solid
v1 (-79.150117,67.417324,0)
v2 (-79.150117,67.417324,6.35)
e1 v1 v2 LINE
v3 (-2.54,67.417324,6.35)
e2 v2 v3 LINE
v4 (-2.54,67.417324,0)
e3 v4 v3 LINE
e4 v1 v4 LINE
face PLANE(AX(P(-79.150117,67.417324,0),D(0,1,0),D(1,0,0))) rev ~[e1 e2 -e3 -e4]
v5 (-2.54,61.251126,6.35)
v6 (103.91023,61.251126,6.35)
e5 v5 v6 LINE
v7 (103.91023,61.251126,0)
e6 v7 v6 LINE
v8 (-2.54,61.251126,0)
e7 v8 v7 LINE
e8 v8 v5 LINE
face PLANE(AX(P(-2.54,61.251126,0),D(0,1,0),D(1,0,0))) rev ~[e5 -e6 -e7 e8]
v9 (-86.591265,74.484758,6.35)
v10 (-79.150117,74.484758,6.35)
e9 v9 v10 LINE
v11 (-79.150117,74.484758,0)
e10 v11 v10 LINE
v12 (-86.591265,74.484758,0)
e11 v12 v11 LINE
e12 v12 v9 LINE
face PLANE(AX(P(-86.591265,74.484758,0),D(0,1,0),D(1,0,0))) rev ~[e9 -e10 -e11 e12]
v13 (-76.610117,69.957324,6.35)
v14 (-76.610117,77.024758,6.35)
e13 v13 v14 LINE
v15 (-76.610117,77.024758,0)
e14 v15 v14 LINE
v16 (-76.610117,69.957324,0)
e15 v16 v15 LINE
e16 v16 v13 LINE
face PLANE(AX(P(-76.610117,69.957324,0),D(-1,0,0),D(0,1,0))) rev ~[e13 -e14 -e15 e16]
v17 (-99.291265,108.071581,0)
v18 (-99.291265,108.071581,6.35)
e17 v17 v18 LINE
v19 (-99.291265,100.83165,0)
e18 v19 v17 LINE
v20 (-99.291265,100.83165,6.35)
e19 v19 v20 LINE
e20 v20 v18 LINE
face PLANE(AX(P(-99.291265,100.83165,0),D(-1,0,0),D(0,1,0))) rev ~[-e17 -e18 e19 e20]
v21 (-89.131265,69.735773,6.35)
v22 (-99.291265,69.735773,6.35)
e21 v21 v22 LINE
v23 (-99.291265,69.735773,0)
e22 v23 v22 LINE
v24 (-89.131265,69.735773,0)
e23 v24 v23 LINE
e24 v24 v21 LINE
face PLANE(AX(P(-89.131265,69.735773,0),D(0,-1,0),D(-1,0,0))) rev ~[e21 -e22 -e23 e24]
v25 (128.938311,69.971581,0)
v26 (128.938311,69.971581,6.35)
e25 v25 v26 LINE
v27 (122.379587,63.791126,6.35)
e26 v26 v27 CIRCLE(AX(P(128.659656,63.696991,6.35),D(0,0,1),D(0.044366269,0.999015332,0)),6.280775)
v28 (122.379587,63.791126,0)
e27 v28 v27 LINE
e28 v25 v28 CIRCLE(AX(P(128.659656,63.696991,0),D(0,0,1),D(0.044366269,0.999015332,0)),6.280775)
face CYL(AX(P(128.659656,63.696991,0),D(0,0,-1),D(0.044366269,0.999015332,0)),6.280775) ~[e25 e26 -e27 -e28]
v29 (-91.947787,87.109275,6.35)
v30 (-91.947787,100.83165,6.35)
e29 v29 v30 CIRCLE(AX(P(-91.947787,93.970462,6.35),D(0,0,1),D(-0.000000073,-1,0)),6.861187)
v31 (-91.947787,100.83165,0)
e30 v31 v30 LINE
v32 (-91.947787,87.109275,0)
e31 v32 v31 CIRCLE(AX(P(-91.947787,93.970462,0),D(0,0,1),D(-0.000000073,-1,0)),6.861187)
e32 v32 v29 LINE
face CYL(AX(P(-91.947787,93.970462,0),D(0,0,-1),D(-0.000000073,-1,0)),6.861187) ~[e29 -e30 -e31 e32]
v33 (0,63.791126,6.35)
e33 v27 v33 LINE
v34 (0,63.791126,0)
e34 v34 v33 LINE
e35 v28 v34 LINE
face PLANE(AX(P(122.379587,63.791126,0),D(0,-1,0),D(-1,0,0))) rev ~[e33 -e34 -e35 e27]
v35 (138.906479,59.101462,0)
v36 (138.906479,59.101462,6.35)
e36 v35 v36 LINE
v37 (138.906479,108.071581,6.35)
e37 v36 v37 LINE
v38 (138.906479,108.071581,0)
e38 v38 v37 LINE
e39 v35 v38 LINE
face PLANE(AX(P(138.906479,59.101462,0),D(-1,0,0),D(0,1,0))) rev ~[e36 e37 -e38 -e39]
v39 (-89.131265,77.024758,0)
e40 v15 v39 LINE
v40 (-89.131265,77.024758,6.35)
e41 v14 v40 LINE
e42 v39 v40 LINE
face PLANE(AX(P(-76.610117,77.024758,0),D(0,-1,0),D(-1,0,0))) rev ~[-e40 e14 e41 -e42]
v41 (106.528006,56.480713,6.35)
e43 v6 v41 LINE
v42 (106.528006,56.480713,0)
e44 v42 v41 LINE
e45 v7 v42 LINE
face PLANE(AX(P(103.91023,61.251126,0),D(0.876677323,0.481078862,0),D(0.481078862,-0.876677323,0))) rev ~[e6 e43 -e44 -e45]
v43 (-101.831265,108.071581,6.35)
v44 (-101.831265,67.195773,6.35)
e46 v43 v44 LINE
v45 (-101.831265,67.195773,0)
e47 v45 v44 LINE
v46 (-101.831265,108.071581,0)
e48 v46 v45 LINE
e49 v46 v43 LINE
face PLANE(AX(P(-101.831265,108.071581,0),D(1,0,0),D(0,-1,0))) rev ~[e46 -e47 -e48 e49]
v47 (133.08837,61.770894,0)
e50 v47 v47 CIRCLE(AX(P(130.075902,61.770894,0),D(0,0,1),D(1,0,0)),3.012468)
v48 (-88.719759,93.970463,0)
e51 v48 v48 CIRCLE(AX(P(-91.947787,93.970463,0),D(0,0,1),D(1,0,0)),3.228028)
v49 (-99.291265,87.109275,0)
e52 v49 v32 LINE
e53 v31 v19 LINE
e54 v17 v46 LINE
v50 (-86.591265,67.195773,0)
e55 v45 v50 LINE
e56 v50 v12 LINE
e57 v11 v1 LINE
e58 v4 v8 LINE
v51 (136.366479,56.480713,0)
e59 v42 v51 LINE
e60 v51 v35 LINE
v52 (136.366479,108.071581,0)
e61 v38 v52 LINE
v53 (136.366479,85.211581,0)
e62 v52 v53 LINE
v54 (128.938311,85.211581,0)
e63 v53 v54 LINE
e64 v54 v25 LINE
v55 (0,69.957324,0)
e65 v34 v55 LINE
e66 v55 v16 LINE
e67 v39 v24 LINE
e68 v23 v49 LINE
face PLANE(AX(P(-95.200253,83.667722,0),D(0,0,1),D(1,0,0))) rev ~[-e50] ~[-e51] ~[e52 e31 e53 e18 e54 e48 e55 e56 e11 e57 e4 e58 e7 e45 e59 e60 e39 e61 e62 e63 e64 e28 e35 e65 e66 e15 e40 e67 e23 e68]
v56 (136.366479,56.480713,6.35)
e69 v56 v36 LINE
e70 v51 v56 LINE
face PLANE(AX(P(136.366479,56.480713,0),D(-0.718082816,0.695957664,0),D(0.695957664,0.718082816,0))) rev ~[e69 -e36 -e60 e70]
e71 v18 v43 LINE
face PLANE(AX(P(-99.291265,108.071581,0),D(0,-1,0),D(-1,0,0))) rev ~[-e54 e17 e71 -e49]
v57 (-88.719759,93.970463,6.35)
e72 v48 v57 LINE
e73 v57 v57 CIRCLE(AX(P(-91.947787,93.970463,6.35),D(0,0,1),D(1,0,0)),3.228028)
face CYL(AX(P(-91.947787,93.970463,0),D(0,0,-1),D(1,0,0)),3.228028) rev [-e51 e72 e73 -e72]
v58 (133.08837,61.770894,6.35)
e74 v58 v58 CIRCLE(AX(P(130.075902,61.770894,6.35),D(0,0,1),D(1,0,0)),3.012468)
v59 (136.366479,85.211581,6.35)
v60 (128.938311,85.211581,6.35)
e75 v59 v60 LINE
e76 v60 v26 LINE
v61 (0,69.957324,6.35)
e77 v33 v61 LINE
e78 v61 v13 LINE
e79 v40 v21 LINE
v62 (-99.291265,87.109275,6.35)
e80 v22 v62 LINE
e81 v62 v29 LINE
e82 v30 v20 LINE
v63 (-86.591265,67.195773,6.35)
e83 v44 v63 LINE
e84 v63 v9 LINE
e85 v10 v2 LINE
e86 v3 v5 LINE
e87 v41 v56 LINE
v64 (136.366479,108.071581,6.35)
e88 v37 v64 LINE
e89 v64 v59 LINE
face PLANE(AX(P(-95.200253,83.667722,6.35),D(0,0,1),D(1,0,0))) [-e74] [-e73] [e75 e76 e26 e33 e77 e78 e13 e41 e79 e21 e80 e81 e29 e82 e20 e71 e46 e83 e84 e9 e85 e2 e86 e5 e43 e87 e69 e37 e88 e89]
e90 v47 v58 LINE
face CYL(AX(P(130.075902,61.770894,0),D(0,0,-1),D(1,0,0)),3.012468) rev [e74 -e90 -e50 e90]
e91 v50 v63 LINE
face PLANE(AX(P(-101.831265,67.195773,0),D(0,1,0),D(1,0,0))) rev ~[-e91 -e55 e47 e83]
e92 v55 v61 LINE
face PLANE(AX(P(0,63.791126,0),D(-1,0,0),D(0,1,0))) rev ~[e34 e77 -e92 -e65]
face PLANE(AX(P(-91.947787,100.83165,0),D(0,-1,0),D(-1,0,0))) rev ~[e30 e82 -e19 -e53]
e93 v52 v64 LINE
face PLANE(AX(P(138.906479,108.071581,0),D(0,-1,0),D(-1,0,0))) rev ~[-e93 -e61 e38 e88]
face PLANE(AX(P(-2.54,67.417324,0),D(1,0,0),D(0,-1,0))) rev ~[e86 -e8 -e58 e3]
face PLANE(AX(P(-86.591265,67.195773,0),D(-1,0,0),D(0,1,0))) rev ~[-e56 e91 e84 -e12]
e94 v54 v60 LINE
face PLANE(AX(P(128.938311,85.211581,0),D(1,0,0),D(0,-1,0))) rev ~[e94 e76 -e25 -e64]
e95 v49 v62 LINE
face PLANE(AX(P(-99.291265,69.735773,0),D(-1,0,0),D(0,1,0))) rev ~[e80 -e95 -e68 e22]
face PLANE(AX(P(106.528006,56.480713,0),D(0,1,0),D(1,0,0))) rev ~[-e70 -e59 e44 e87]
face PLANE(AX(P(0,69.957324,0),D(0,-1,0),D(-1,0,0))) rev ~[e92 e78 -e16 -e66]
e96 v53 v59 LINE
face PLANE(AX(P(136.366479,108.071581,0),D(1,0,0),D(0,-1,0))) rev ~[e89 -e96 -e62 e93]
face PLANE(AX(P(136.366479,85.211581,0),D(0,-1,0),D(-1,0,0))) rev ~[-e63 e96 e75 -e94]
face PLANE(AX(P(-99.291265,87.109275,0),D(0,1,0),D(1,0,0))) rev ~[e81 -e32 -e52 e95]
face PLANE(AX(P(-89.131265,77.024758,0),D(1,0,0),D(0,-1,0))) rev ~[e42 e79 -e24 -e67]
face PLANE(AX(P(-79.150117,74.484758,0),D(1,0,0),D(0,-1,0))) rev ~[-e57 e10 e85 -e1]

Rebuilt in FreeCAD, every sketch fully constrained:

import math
import FreeCAD as App
import Part
import Sketcher

V = App.Vector
Q = App.Units.Quantity

doc = App.newDocument("Part")
body = doc.addObject("PartDesign::Body", "Body")

sketch1 = doc.addObject("Sketcher::SketchObject", "Sketch")
body.addObject(sketch1)
sketch1.AttachmentSupport = (doc.XY_Plane, [""])
sketch1.MapMode = "FlatFace"
sketch1.addGeometry([
    Part.ArcOfCircle(Part.Circle(V(-91.9, 94, 0), V(0, 0, 1), 6.9), math.radians(-90), math.radians(90)),
    Part.LineSegment(V(-91.9, 100.8, 0), V(-99.3, 100.8, 0)),
    Part.LineSegment(V(-99.3, 100.8, 0), V(-99.3, 108.1, 0)),
    Part.LineSegment(V(-99.3, 108.1, 0), V(-101.8, 108.1, 0)),
    Part.LineSegment(V(-101.8, 108.1, 0), V(-101.8, 67.2, 0)),
    Part.LineSegment(V(-101.8, 67.2, 0), V(-86.6, 67.2, 0)),
    Part.LineSegment(V(-86.6, 67.2, 0), V(-86.6, 74.5, 0)),
    Part.LineSegment(V(-86.6, 74.5, 0), V(-79.2, 74.5, 0)),
    Part.LineSegment(V(-79.2, 74.5, 0), V(-79.2, 67.4, 0)),
    Part.LineSegment(V(-79.2, 67.4, 0), V(-2.5, 67.4, 0)),
    Part.LineSegment(V(-2.5, 67.4, 0), V(-2.5, 61.3, 0)),
    Part.LineSegment(V(-2.5, 61.3, 0), V(103.9, 61.3, 0)),
    Part.LineSegment(V(103.9, 61.3, 0), V(106.5, 56.5, 0)),
    Part.LineSegment(V(106.5, 56.5, 0), V(136.4, 56.5, 0)),
    Part.LineSegment(V(136.4, 56.5, 0), V(138.9, 59.1, 0)),
    Part.LineSegment(V(138.9, 59.1, 0), V(138.9, 108.1, 0)),
    Part.LineSegment(V(138.9, 108.1, 0), V(136.4, 108.1, 0)),
    Part.LineSegment(V(136.4, 108.1, 0), V(136.4, 85.2, 0)),
    Part.LineSegment(V(136.4, 85.2, 0), V(128.9, 85.2, 0)),
    Part.LineSegment(V(128.9, 85.2, 0), V(128.9, 70, 0)),
    Part.ArcOfCircle(Part.Circle(V(128.7, 63.7, 0), V(0, 0, 1), 6.3), math.radians(87), math.radians(179)),
    Part.LineSegment(V(122.4, 63.8, 0), V(0, 63.8, 0)),
    Part.LineSegment(V(0, 63.8, 0), V(0, 70, 0)),
    Part.LineSegment(V(0, 70, 0), V(-76.6, 70, 0)),
    Part.LineSegment(V(-76.6, 70, 0), V(-76.6, 77, 0)),
    Part.LineSegment(V(-76.6, 77, 0), V(-89.1, 77, 0)),
    Part.LineSegment(V(-89.1, 77, 0), V(-89.1, 69.7, 0)),
    Part.LineSegment(V(-89.1, 69.7, 0), V(-99.3, 69.7, 0)),
    Part.LineSegment(V(-99.3, 69.7, 0), V(-99.3, 87.1, 0)),
    Part.LineSegment(V(-99.3, 87.1, 0), V(-91.9, 87.1, 0)),
    Part.Circle(V(130.1, 61.8, 0), V(0, 0, 1), 3),
    Part.Circle(V(-91.9, 94, 0), V(0, 0, 1), 3.2),
], False)
sketch1.addConstraint([
    Sketcher.Constraint("Tangent", 0, 2, 1, 1),
    Sketcher.Constraint("Coincident", 1, 2, 2, 1),
    Sketcher.Constraint("Coincident", 2, 2, 3, 1),
    Sketcher.Constraint("Coincident", 3, 2, 4, 1),
    Sketcher.Constraint("Coincident", 4, 2, 5, 1),
    Sketcher.Constraint("Coincident", 5, 2, 6, 1),
    Sketcher.Constraint("Coincident", 6, 2, 7, 1),
    Sketcher.Constraint("Coincident", 7, 2, 8, 1),
    Sketcher.Constraint("Coincident", 8, 2, 9, 1),
    Sketcher.Constraint("Coincident", 9, 2, 10, 1),
    Sketcher.Constraint("Coincident", 10, 2, 11, 1),
    Sketcher.Constraint("Coincident", 11, 2, 12, 1),
    Sketcher.Constraint("Coincident", 12, 2, 13, 1),
    Sketcher.Constraint("Coincident", 13, 2, 14, 1),
    Sketcher.Constraint("Coincident", 14, 2, 15, 1),
    Sketcher.Constraint("Coincident", 15, 2, 16, 1),
    Sketcher.Constraint("Coincident", 16, 2, 17, 1),
    Sketcher.Constraint("Coincident", 17, 2, 18, 1),
    Sketcher.Constraint("Coincident", 18, 2, 19, 1),
    Sketcher.Constraint("Coincident", 19, 2, 20, 1),
    Sketcher.Constraint("Coincident", 20, 2, 21, 1),
    Sketcher.Constraint("Coincident", 21, 2, 22, 1),
    Sketcher.Constraint("Coincident", 22, 2, 23, 1),
    Sketcher.Constraint("Coincident", 23, 2, 24, 1),
    Sketcher.Constraint("Coincident", 24, 2, 25, 1),
    Sketcher.Constraint("Coincident", 25, 2, 26, 1),
    Sketcher.Constraint("Coincident", 26, 2, 27, 1),
    Sketcher.Constraint("Coincident", 27, 2, 28, 1),
    Sketcher.Constraint("Coincident", 28, 2, 29, 1),
    Sketcher.Constraint("Tangent", 29, 2, 0, 1),
    Sketcher.Constraint("Horizontal", 1),
    Sketcher.Constraint("Vertical", 2),
    Sketcher.Constraint("Horizontal", 3),
    Sketcher.Constraint("Vertical", 4),
    Sketcher.Constraint("Horizontal", 5),
    Sketcher.Constraint("Vertical", 6),
    Sketcher.Constraint("Horizontal", 7),
    Sketcher.Constraint("Vertical", 8),
    Sketcher.Constraint("Horizontal", 9),
    Sketcher.Constraint("Vertical", 10),
    Sketcher.Constraint("Horizontal", 11),
    Sketcher.Constraint("Horizontal", 13),
    Sketcher.Constraint("Vertical", 15),
    Sketcher.Constraint("Horizontal", 16),
    Sketcher.Constraint("Vertical", 17),
    Sketcher.Constraint("Horizontal", 18),
    Sketcher.Constraint("Vertical", 19),
    Sketcher.Constraint("Horizontal", 21),
    Sketcher.Constraint("Vertical", 22),
    Sketcher.Constraint("Horizontal", 23),
    Sketcher.Constraint("Vertical", 24),
    Sketcher.Constraint("Horizontal", 25),
    Sketcher.Constraint("Vertical", 26),
    Sketcher.Constraint("Horizontal", 27),
    Sketcher.Constraint("Vertical", 28),
    Sketcher.Constraint("Horizontal", 29),
    Sketcher.Constraint("Coincident", 31, 3, 0, 3),
    Sketcher.Constraint("PointOnObject", 21, 2, -2),
    Sketcher.Constraint("Horizontal", 3, 2, 15, 2),
    Sketcher.Constraint("Vertical", 13, 2, 16, 2),
    Sketcher.Constraint("Vertical", 2, 2, 27, 2),
    Sketcher.Constraint("Equal", 3, 16),
    Sketcher.Constraint("Equal", 9, 23),
    Sketcher.Constraint("Equal", 5, 19),
    Sketcher.Constraint("Equal", 10, 22),
    Sketcher.Constraint("Equal", 8, 24),
    Sketcher.Constraint("Equal", 6, 26),
    Sketcher.Constraint("DistanceX", 3, 2, 3, 1, Q("0.1 in")),
    Sketcher.Constraint("DistanceX", 5, 1, 5, 2, Q("0.6 in")),
    Sketcher.Constraint("DistanceX", 27, 2, 27, 1, Q("0.4 in")),
    Sketcher.Constraint("DistanceY", 17, 2, 17, 1, Q("0.9 in")),
    Sketcher.Constraint("DistanceX", 9, 2, -1, 1, Q("0.1 in")),
    Sketcher.Constraint("DistanceY", 10, 2, 21, 2, Q("0.1 in")),
    Sketcher.Constraint("Diameter", 30, Q("6.024936 mm")),
    Sketcher.Constraint("Diameter", 31, Q("6.456056 mm")),
    Sketcher.Constraint("DistanceY", 22, 1, 22, 2, Q("6.166198 mm")),
    Sketcher.Constraint("Radius", 0, Q("6.861187 mm")),
    Sketcher.Constraint("Radius", 20, Q("6.280775 mm")),
    Sketcher.Constraint("DistanceX", 7, 1, 7, 2, Q("7.441148 mm")),
    Sketcher.Constraint("DistanceX", 11, 1, 11, 2, Q("106.45023 mm")),
    Sketcher.Constraint("DistanceY", 2, 1, 2, 2, Q("7.239931 mm")),
    Sketcher.Constraint("DistanceY", 15, 1, 15, 2, Q("48.970119 mm")),
    Sketcher.Constraint("Distance", 12, Q("5.44147 mm")),
    Sketcher.Constraint("DistanceX", 1, 2, 1, 1, Q("7.343478 mm")),
    Sketcher.Constraint("DistanceX", 9, 1, 9, 2, Q("76.610117 mm")),
    Sketcher.Constraint("DistanceX", 13, 1, 13, 2, Q("29.838473 mm")),
    Sketcher.Constraint("DistanceX", 18, 2, 18, 1, Q("7.428168 mm")),
    Sketcher.Constraint("DistanceX", 21, 2, 21, 1, Q("122.379587 mm")),
    Sketcher.Constraint("DistanceY", 4, 2, 4, 1, Q("40.875808 mm")),
    Sketcher.Constraint("DistanceY", 6, 1, 6, 2, Q("7.288985 mm")),
    Sketcher.Constraint("DistanceY", 8, 2, 8, 1, Q("7.067434 mm")),
    Sketcher.Constraint("DistanceY", -1, 1, 20, 3, Q("63.696991 mm")),
    Sketcher.Constraint("DistanceY", -1, 1, 0, 2, Q("100.83165 mm")),
    Sketcher.Constraint("DistanceX", 0, 3, 30, 3, Q("222.023689 mm")),
    Sketcher.Constraint("DistanceY", 30, 3, 0, 3, Q("32.199568 mm")),
])
pad1 = doc.addObject("PartDesign::Pad", "Pad")
body.addObject(pad1)
pad1.Profile = sketch1
pad1.Length = Q("0.25 in")

doc.recompute()
